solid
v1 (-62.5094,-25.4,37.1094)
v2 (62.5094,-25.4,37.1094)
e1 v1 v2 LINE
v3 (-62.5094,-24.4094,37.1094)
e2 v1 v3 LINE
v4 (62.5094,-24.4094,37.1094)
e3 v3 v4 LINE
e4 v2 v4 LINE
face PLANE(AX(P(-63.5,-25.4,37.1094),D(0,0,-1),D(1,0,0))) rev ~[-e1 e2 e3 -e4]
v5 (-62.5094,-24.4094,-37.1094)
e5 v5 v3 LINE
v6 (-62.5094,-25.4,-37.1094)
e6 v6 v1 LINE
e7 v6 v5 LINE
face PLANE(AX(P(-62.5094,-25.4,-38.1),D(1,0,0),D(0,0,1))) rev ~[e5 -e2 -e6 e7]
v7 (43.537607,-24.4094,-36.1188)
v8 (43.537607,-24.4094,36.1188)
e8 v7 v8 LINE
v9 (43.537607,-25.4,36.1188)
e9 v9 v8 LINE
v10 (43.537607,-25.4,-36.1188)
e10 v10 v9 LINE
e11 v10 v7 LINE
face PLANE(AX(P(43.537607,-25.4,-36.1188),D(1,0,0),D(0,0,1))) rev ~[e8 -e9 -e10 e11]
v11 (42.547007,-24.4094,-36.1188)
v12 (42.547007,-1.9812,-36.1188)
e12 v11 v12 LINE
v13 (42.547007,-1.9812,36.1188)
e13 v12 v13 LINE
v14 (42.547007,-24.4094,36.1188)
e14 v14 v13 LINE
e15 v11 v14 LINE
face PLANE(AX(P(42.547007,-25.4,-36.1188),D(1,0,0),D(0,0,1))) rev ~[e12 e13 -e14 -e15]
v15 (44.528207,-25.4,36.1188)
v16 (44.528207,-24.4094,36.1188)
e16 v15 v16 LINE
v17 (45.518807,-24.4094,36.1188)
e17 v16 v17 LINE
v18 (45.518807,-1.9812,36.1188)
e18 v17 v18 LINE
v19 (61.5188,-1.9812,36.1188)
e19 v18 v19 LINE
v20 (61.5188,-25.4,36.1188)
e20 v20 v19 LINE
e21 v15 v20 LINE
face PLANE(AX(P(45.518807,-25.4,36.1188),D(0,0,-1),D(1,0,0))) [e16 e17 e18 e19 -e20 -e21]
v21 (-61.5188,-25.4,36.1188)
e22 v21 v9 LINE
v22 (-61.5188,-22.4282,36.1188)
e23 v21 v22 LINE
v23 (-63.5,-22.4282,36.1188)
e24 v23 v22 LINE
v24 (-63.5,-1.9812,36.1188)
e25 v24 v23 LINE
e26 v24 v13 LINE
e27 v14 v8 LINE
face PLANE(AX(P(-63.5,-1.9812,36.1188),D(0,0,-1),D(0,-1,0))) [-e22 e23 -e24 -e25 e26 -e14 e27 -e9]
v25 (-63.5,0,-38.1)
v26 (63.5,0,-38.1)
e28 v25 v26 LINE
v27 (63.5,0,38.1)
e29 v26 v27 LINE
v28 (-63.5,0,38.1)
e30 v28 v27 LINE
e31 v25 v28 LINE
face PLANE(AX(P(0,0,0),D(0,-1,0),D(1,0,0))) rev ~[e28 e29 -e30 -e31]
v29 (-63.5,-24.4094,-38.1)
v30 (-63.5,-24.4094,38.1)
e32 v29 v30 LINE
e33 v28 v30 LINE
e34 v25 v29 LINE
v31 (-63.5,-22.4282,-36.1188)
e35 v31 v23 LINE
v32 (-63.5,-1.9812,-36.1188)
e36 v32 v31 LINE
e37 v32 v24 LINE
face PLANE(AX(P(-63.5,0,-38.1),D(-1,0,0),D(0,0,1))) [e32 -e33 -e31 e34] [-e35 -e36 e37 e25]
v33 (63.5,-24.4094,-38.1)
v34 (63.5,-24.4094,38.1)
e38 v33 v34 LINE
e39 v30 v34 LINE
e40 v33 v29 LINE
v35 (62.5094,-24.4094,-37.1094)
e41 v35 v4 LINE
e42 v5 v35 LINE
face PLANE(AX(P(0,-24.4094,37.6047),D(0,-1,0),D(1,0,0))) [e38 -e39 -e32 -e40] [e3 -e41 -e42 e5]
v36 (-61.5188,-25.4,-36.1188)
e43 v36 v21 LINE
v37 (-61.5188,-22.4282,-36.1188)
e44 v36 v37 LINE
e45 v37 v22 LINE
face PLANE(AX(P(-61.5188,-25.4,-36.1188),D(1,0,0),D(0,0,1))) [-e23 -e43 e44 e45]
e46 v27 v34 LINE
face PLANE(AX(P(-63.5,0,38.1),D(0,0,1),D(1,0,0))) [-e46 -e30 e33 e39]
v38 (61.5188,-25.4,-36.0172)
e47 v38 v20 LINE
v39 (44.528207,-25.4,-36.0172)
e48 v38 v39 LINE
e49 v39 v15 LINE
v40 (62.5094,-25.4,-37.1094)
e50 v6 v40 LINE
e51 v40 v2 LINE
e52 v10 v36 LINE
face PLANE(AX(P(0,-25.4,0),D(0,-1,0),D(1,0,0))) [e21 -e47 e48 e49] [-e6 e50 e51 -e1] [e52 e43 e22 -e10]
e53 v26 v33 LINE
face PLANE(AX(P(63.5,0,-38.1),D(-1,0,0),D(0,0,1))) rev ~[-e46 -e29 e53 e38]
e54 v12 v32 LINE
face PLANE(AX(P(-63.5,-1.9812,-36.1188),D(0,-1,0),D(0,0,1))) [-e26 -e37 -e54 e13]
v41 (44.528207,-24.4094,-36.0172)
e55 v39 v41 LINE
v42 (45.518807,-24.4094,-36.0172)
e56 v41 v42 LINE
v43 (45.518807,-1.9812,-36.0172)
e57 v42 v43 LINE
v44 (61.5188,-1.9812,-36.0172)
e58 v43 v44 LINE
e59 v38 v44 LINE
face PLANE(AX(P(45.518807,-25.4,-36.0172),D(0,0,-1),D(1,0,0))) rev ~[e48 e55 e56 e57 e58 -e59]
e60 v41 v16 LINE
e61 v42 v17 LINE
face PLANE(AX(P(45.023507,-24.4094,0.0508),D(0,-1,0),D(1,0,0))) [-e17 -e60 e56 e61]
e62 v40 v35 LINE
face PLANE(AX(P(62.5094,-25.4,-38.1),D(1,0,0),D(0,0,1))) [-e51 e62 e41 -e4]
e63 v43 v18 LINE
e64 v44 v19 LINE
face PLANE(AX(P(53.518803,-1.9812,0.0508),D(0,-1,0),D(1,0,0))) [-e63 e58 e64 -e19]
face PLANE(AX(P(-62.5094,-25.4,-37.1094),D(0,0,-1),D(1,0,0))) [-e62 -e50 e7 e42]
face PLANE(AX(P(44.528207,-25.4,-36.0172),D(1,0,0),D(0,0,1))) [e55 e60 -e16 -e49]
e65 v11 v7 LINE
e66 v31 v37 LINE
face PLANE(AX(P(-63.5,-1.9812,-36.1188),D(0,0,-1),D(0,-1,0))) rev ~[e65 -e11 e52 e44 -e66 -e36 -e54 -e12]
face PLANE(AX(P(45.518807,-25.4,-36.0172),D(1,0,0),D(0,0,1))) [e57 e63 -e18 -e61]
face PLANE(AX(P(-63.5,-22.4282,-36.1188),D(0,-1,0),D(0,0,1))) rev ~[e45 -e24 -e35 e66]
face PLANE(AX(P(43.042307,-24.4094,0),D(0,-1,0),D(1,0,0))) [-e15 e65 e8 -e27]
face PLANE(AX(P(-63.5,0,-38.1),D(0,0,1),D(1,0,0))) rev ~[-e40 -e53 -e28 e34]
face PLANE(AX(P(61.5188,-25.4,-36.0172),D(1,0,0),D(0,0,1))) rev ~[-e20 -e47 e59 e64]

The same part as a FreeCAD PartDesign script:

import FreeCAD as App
import Part
import Sketcher
from FreeCAD import Vector
Q = App.Units.Quantity

doc = App.newDocument("Part")
params = doc.addObject("Spreadsheet::Sheet", "Params")
for row, (alias, value) in enumerate([
    ("sketch1_width", "5 in"),
    ("sketch1_height", "3 in"),
    ("pad1_length", "1 in"),
    ("sketch2_height", "2.84 in"),
    ("pocket1_length", "0.922 in"),
    ("sketch3_height", "2.84 in"),
    ("sketch3_width", "0.039 in"),
    ("pocket2_length", "0.039 in"),
    ("sketch4_width", "5 in"),
    ("sketch4_height", "0.039 in"),
    ("pocket3_length", "0.039 in"),
    ("sketch5_width", "0.039 in"),
    ("sketch5_height", "2.961 in"),
    ("pocket4_length", "0.039 in"),
    ("sketch6_width", "0.039 in"),
    ("sketch6_height", "2.961 in"),
    ("pocket5_length", "0.039 in"),
    ("sketch7_width", "4.922 in"),
    ("sketch7_height", "0.039 in"),
    ("pocket6_length", "0.039 in"),
    ("sketch8_height", "2.844 in"),
    ("pocket7_length", "0.922 in"),
    ("sketch9_width", "0.039 in"),
    ("sketch9_height", "2.844 in"),
    ("pocket8_length", "0.039 in"),
    ("sketch10_width", "0.805 in"),
    ("sketch10_height", "2.844 in"),
    ("pocket9_length", "0.078 in"),
], start=1):
    params.set(f"A{row}", alias)
    params.set(f"B{row}", "=" + value)
    params.setAlias(f"B{row}", alias)

body = doc.addObject("PartDesign::Body", "Body")

# Sketch on XZ plane
sketch1 = doc.addObject("Sketcher::SketchObject", "Sketch")
body.addObject(sketch1)
sketch1.AttachmentSupport = (doc.XZ_Plane, [""])
sketch1.MapMode = "FlatFace"
sketch1.addGeometry([
    Part.LineSegment(Vector(-64, 38, 0), Vector(-64, -38, 0)),
    Part.LineSegment(Vector(-64, -38, 0), Vector(64, -38, 0)),
    Part.LineSegment(Vector(64, -38, 0), Vector(64, 38, 0)),
    Part.LineSegment(Vector(64, 38, 0), Vector(-64, 38, 0)),
], False)
sketch1.addConstraint([
    Sketcher.Constraint("Coincident", 0, 2, 1, 1),
    Sketcher.Constraint("Coincident", 1, 2, 2, 1),
    Sketcher.Constraint("Coincident", 2, 2, 3, 1),
    Sketcher.Constraint("Coincident", 3, 2, 0, 1),
    Sketcher.Constraint("Vertical", 0),
    Sketcher.Constraint("Horizontal", 1),
    Sketcher.Constraint("Vertical", 2),
    Sketcher.Constraint("Horizontal", 3),
    Sketcher.Constraint("Symmetric", 0, 2, 2, 2, -1, 1),
    Sketcher.Constraint("DistanceX", 1, 1, 1, 2, Q("5 in")),
    Sketcher.Constraint("DistanceY", 0, 2, 0, 1, Q("3 in")),
])
sketch1.setExpression("Constraints[9]", "Params.sketch1_width")
sketch1.setExpression("Constraints[10]", "Params.sketch1_height")
pad1 = doc.addObject("PartDesign::Pad", "Pad")
body.addObject(pad1)
pad1.Profile = sketch1
pad1.setExpression("Length", "Params.pad1_length")

# Sketch on XZ plane
sketch2 = doc.addObject("Sketcher::SketchObject", "Sketch001")
body.addObject(sketch2)
sketch2.AttachmentSupport = (doc.XZ_Plane, [""])
sketch2.MapMode = "FlatFace"
sketch2.AttachmentOffset = App.Placement(Vector(0, 0, 1 * 25.4), App.Rotation())
sketch2.addGeometry([
    Part.LineSegment(Vector(46, 36, 0), Vector(46, -36, 0)),
    Part.LineSegment(Vector(46, -36, 0), Vector(62, -36, 0)),
    Part.LineSegment(Vector(62, -36, 0), Vector(62, 36, 0)),
    Part.LineSegment(Vector(62, 36, 0), Vector(46, 36, 0)),
], False)
sketch2.addConstraint([
    Sketcher.Constraint("Coincident", 0, 2, 1, 1),
    Sketcher.Constraint("Coincident", 1, 2, 2, 1),
    Sketcher.Constraint("Coincident", 2, 2, 3, 1),
    Sketcher.Constraint("Coincident", 3, 2, 0, 1),
    Sketcher.Constraint("Vertical", 0),
    Sketcher.Constraint("Horizontal", 1),
    Sketcher.Constraint("Vertical", 2),
    Sketcher.Constraint("Horizontal", 3),
    Sketcher.Constraint("DistanceY", 0, 2, 0, 1, Q("2.84 in")),
    Sketcher.Constraint("DistanceY", 0, 2, -1, 1, Q("1.418 in")),
    Sketcher.Constraint("DistanceX", -1, 1, 1, 2, Q("2.422 in")),
    Sketcher.Constraint("DistanceX", 1, 1, 1, 2, Q("15.999993 mm")),
])
sketch2.setExpression("Constraints[8]", "Params.sketch2_height")
pocket1 = doc.addObject("PartDesign::Pocket", "Pocket")
body.addObject(pocket1)
pocket1.Profile = sketch2
pocket1.setExpression("Length", "Params.pocket1_length")

# Sketch on XZ plane
sketch3 = doc.addObject("Sketcher::SketchObject", "Sketch002")
body.addObject(sketch3)
sketch3.AttachmentSupport = (doc.XZ_Plane, [""])
sketch3.MapMode = "FlatFace"
sketch3.AttachmentOffset = App.Placement(Vector(0, 0, 1 * 25.4), App.Rotation())
sketch3.addGeometry([
    Part.LineSegment(Vector(44.5, 36.1, 0), Vector(44.5, -36, 0)),
    Part.LineSegment(Vector(44.5, -36, 0), Vector(45.5, -36, 0)),
    Part.LineSegment(Vector(45.5, -36, 0), Vector(45.5, 36.1, 0)),
    Part.LineSegment(Vector(45.5, 36.1, 0), Vector(44.5, 36.1, 0)),
], False)
sketch3.addConstraint([
    Sketcher.Constraint("Coincident", 0, 2, 1, 1),
    Sketcher.Constraint("Coincident", 1, 2, 2, 1),
    Sketcher.Constraint("Coincident", 2, 2, 3, 1),
    Sketcher.Constraint("Coincident", 3, 2, 0, 1),
    Sketcher.Constraint("Vertical", 0),
    Sketcher.Constraint("Horizontal", 1),
    Sketcher.Constraint("Vertical", 2),
    Sketcher.Constraint("Horizontal", 3),
    Sketcher.Constraint("DistanceY", 0, 2, 0, 1, Q("2.84 in")),
    Sketcher.Constraint("DistanceX", 1, 1, 1, 2, Q("0.039 in")),
    Sketcher.Constraint("DistanceY", 0, 2, -1, 1, Q("1.418 in")),
    Sketcher.Constraint("DistanceX", -1, 1, 0, 2, Q("44.528207 mm")),
])
sketch3.setExpression("Constraints[8]", "Params.sketch3_height")
sketch3.setExpression("Constraints[9]", "Params.sketch3_width")
pocket2 = doc.addObject("PartDesign::Pocket", "Pocket001")
body.addObject(pocket2)
pocket2.Profile = sketch3
pocket2.setExpression("Length", "Params.pocket2_length")

# Sketch on XZ plane
sketch4 = doc.addObject("Sketcher::SketchObject", "Sketch003")
body.addObject(sketch4)
sketch4.AttachmentSupport = (doc.XZ_Plane, [""])
sketch4.MapMode = "FlatFace"
sketch4.AttachmentOffset = App.Placement(Vector(0, 0, 1 * 25.4), App.Rotation())
sketch4.addGeometry([
    Part.LineSegment(Vector(-63.5, 38.1, 0), Vector(-63.5, 37.1, 0)),
    Part.LineSegment(Vector(-63.5, 37.1, 0), Vector(63.5, 37.1, 0)),
    Part.LineSegment(Vector(63.5, 37.1, 0), Vector(63.5, 38.1, 0)),
    Part.LineSegment(Vector(63.5, 38.1, 0), Vector(-63.5, 38.1, 0)),
], False)
sketch4.addConstraint([
    Sketcher.Constraint("Coincident", 0, 2, 1, 1),
    Sketcher.Constraint("Coincident", 1, 2, 2, 1),
    Sketcher.Constraint("Coincident", 2, 2, 3, 1),
    Sketcher.Constraint("Coincident", 3, 2, 0, 1),
    Sketcher.Constraint("Vertical", 0),
    Sketcher.Constraint("Horizontal", 1),
    Sketcher.Constraint("Vertical", 2),
    Sketcher.Constraint("Horizontal", 3),
    Sketcher.Constraint("DistanceX", 1, 1, 1, 2, Q("5 in")),
    Sketcher.Constraint("DistanceX", 0, 2, -1, 1, Q("2.5 in")),
    Sketcher.Constraint("DistanceY", -1, 1, 2, 2, Q("1.5 in")),
    Sketcher.Constraint("DistanceY", 0, 2, 0, 1, Q("0.039 in")),
])
sketch4.setExpression("Constraints[8]", "Params.sketch4_width")
sketch4.setExpression("Constraints[11]", "Params.sketch4_height")
pocket3 = doc.addObject("PartDesign::Pocket", "Pocket002")
body.addObject(pocket3)
pocket3.Profile = sketch4
pocket3.setExpression("Length", "Params.pocket3_length")

# Sketch on XZ plane
sketch5 = doc.addObject("Sketcher::SketchObject", "Sketch004")
body.addObject(sketch5)
sketch5.AttachmentSupport = (doc.XZ_Plane, [""])
sketch5.MapMode = "FlatFace"
sketch5.AttachmentOffset = App.Placement(Vector(0, 0, 1 * 25.4), App.Rotation())
sketch5.addGeometry([
    Part.LineSegment(Vector(62.5, 37.1, 0), Vector(62.5, -38.1, 0)),
    Part.LineSegment(Vector(62.5, -38.1, 0), Vector(63.5, -38.1, 0)),
    Part.LineSegment(Vector(63.5, -38.1, 0), Vector(63.5, 37.1, 0)),
    Part.LineSegment(Vector(63.5, 37.1, 0), Vector(62.5, 37.1, 0)),
], False)
sketch5.addConstraint([
    Sketcher.Constraint("Coincident", 0, 2, 1, 1),
    Sketcher.Constraint("Coincident", 1, 2, 2, 1),
    Sketcher.Constraint("Coincident", 2, 2, 3, 1),
    Sketcher.Constraint("Coincident", 3, 2, 0, 1),
    Sketcher.Constraint("Vertical", 0),
    Sketcher.Constraint("Horizontal", 1),
    Sketcher.Constraint("Vertical", 2),
    Sketcher.Constraint("Horizontal", 3),
    Sketcher.Constraint("DistanceY", 0, 2, -1, 1, Q("1.5 in")),
    Sketcher.Constraint("DistanceX", -1, 1, 1, 2, Q("2.5 in")),
    Sketcher.Constraint("DistanceX", 1, 1, 1, 2, Q("0.039 in")),
    Sketcher.Constraint("DistanceY", 0, 2, 0, 1, Q("2.961 in")),
])
sketch5.setExpression("Constraints[10]", "Params.sketch5_width")
sketch5.setExpression("Constraints[11]", "Params.sketch5_height")
pocket4 = doc.addObject("PartDesign::Pocket", "Pocket003")
body.addObject(pocket4)
pocket4.Profile = sketch5
pocket4.setExpression("Length", "Params.pocket4_length")

# Sketch on XZ plane
sketch6 = doc.addObject("Sketcher::SketchObject", "Sketch005")
body.addObject(sketch6)
sketch6.AttachmentSupport = (doc.XZ_Plane, [""])
sketch6.MapMode = "FlatFace"
sketch6.AttachmentOffset = App.Placement(Vector(0, 0, 1 * 25.4), App.Rotation())
sketch6.addGeometry([
    Part.LineSegment(Vector(-63.5, 37.1, 0), Vector(-63.5, -38.1, 0)),
    Part.LineSegment(Vector(-63.5, -38.1, 0), Vector(-62.5, -38.1, 0)),
    Part.LineSegment(Vector(-62.5, -38.1, 0), Vector(-62.5, 37.1, 0)),
    Part.LineSegment(Vector(-62.5, 37.1, 0), Vector(-63.5, 37.1, 0)),
], False)
sketch6.addConstraint([
    Sketcher.Constraint("Coincident", 0, 2, 1, 1),
    Sketcher.Constraint("Coincident", 1, 2, 2, 1),
    Sketcher.Constraint("Coincident", 2, 2, 3, 1),
    Sketcher.Constraint("Coincident", 3, 2, 0, 1),
    Sketcher.Constraint("Vertical", 0),
    Sketcher.Constraint("Horizontal", 1),
    Sketcher.Constraint("Vertical", 2),
    Sketcher.Constraint("Horizontal", 3),
    Sketcher.Constraint("DistanceX", 0, 2, -1, 1, Q("2.5 in")),
    Sketcher.Constraint("DistanceY", 0, 2, -1, 1, Q("1.5 in")),
    Sketcher.Constraint("DistanceX", 1, 1, 1, 2, Q("0.039 in")),
    Sketcher.Constraint("DistanceY", 0, 2, 0, 1, Q("2.961 in")),
])
sketch6.setExpression("Constraints[10]", "Params.sketch6_width")
sketch6.setExpression("Constraints[11]", "Params.sketch6_height")
pocket5 = doc.addObject("PartDesign::Pocket", "Pocket004")
body.addObject(pocket5)
pocket5.Profile = sketch6
pocket5.setExpression("Length", "Params.pocket5_length")

# Sketch on XZ plane
sketch7 = doc.addObject("Sketcher::SketchObject", "Sketch006")
body.addObject(sketch7)
sketch7.AttachmentSupport = (doc.XZ_Plane, [""])
sketch7.MapMode = "FlatFace"
sketch7.AttachmentOffset = App.Placement(Vector(0, 0, 1 * 25.4), App.Rotation())
sketch7.addGeometry([
    Part.LineSegment(Vector(-62.5, -37.1, 0), Vector(-62.5, -38.1, 0)),
    Part.LineSegment(Vector(-62.5, -38.1, 0), Vector(62.5, -38.1, 0)),
    Part.LineSegment(Vector(62.5, -38.1, 0), Vector(62.5, -37.1, 0)),
    Part.LineSegment(Vector(62.5, -37.1, 0), Vector(-62.5, -37.1, 0)),
], False)
sketch7.addConstraint([
    Sketcher.Constraint("Coincident", 0, 2, 1, 1),
    Sketcher.Constraint("Coincident", 1, 2, 2, 1),
    Sketcher.Constraint("Coincident", 2, 2, 3, 1),
    Sketcher.Constraint("Coincident", 3, 2, 0, 1),
    Sketcher.Constraint("Vertical", 0),
    Sketcher.Constraint("Horizontal", 1),
    Sketcher.Constraint("Vertical", 2),
    Sketcher.Constraint("Horizontal", 3),
    Sketcher.Constraint("DistanceY", 0, 2, -1, 1, Q("1.5 in")),
    Sketcher.Constraint("DistanceX", 1, 1, 1, 2, Q("4.922 in")),
    Sketcher.Constraint("DistanceY", 0, 2, 0, 1, Q("0.039 in")),
    Sketcher.Constraint("DistanceX", 0, 2, -1, 1, Q("2.461 in")),
])
sketch7.setExpression("Constraints[9]", "Params.sketch7_width")
sketch7.setExpression("Constraints[10]", "Params.sketch7_height")
pocket6 = doc.addObject("PartDesign::Pocket", "Pocket005")
body.addObject(pocket6)
pocket6.Profile = sketch7
pocket6.setExpression("Length", "Params.pocket6_length")

# Sketch on XZ plane
sketch8 = doc.addObject("Sketcher::SketchObject", "Sketch007")
body.addObject(sketch8)
sketch8.AttachmentSupport = (doc.XZ_Plane, [""])
sketch8.MapMode = "FlatFace"
sketch8.AttachmentOffset = App.Placement(Vector(0, 0, 1 * 25.4), App.Rotation())
sketch8.addGeometry([
    Part.LineSegment(Vector(-62, 36, 0), Vector(-62, -36, 0)),
    Part.LineSegment(Vector(-62, -36, 0), Vector(43, -36, 0)),
    Part.LineSegment(Vector(43, -36, 0), Vector(43, 36, 0)),
    Part.LineSegment(Vector(43, 36, 0), Vector(-62, 36, 0)),
], False)
sketch8.addConstraint([
    Sketcher.Constraint("Coincident", 0, 2, 1, 1),
    Sketcher.Constraint("Coincident", 1, 2, 2, 1),
    Sketcher.Constraint("Coincident", 2, 2, 3, 1),
    Sketcher.Constraint("Coincident", 3, 2, 0, 1),
    Sketcher.Constraint("Vertical", 0),
    Sketcher.Constraint("Horizontal", 1),
    Sketcher.Constraint("Vertical", 2),
    Sketcher.Constraint("Horizontal", 3),
    Sketcher.Constraint("DistanceY", 0, 2, 0, 1, Q("2.844 in")),
    Sketcher.Constraint("DistanceX", 0, 2, -1, 1, Q("2.422 in")),
    Sketcher.Constraint("DistanceY", 0, 2, -1, 1, Q("1.422 in")),
    Sketcher.Constraint("DistanceX", 1, 1, 1, 2, Q("104.065807 mm")),
])
sketch8.setExpression("Constraints[8]", "Params.sketch8_height")
pocket7 = doc.addObject("PartDesign::Pocket", "Pocket006")
body.addObject(pocket7)
pocket7.Profile = sketch8
pocket7.setExpression("Length", "Params.pocket7_length")

# Sketch on XZ plane
sketch9 = doc.addObject("Sketcher::SketchObject", "Sketch008")
body.addObject(sketch9)
sketch9.AttachmentSupport = (doc.XZ_Plane, [""])
sketch9.MapMode = "FlatFace"
sketch9.AttachmentOffset = App.Placement(Vector(0, 0, 1 * 25.4), App.Rotation())
sketch9.addGeometry([
    Part.LineSegment(Vector(42.5, 36.1, 0), Vector(42.5, -36.1, 0)),
    Part.LineSegment(Vector(42.5, -36.1, 0), Vector(43.5, -36.1, 0)),
    Part.LineSegment(Vector(43.5, -36.1, 0), Vector(43.5, 36.1, 0)),
    Part.LineSegment(Vector(43.5, 36.1, 0), Vector(42.5, 36.1, 0)),
], False)
sketch9.addConstraint([
    Sketcher.Constraint("Coincident", 0, 2, 1, 1),
    Sketcher.Constraint("Coincident", 1, 2, 2, 1),
    Sketcher.Constraint("Coincident", 2, 2, 3, 1),
    Sketcher.Constraint("Coincident", 3, 2, 0, 1),
    Sketcher.Constraint("Vertical", 0),
    Sketcher.Constraint("Horizontal", 1),
    Sketcher.Constraint("Vertical", 2),
    Sketcher.Constraint("Horizontal", 3),
    Sketcher.Constraint("DistanceX", 1, 1, 1, 2, Q("0.039 in")),
    Sketcher.Constraint("DistanceY", 0, 2, 0, 1, Q("2.844 in")),
    Sketcher.Constraint("DistanceY", 0, 2, -1, 1, Q("1.422 in")),
    Sketcher.Constraint("DistanceX", -1, 1, 0, 2, Q("42.547007 mm")),
])
sketch9.setExpression("Constraints[8]", "Params.sketch9_width")
sketch9.setExpression("Constraints[9]", "Params.sketch9_height")
pocket8 = doc.addObject("PartDesign::Pocket", "Pocket007")
body.addObject(pocket8)
pocket8.Profile = sketch9
pocket8.setExpression("Length", "Params.pocket8_length")

# Sketch on YZ plane
sketch10 = doc.addObject("Sketcher::SketchObject", "Sketch009")
body.addObject(sketch10)
sketch10.AttachmentSupport = (doc.YZ_Plane, [""])
sketch10.MapMode = "FlatFace"
sketch10.AttachmentOffset = App.Placement(Vector(0, 0, -2.5 * 25.4), App.Rotation())
sketch10.addGeometry([
    Part.LineSegment(Vector(-2, 36, 0), Vector(-2, -36, 0)),
    Part.LineSegment(Vector(-2, -36, 0), Vector(-22, -36, 0)),
    Part.LineSegment(Vector(-22, -36, 0), Vector(-22, 36, 0)),
    Part.LineSegment(Vector(-22, 36, 0), Vector(-2, 36, 0)),
], False)
sketch10.addConstraint([
    Sketcher.Constraint("Coincident", 0, 2, 1, 1),
    Sketcher.Constraint("Coincident", 1, 2, 2, 1),
    Sketcher.Constraint("Coincident", 2, 2, 3, 1),
    Sketcher.Constraint("Coincident", 3, 2, 0, 1),
    Sketcher.Constraint("Vertical", 0),
    Sketcher.Constraint("Horizontal", 1),
    Sketcher.Constraint("Vertical", 2),
    Sketcher.Constraint("Horizontal", 3),
    Sketcher.Constraint("DistanceX", 1, 2, 1, 1, Q("0.805 in")),
    Sketcher.Constraint("DistanceY", 0, 2, 0, 1, Q("2.844 in")),
    Sketcher.Constraint("DistanceX", 0, 2, -1, 1, Q("0.078 in")),
    Sketcher.Constraint("DistanceY", 0, 2, -1, 1, Q("1.422 in")),
])
sketch10.setExpression("Constraints[8]", "Params.sketch10_width")
sketch10.setExpression("Constraints[9]", "Params.sketch10_height")
pocket9 = doc.addObject("PartDesign::Pocket", "Pocket008")
body.addObject(pocket9)
pocket9.Profile = sketch10
pocket9.setExpression("Length", "Params.pocket9_length")
pocket9.Reversed = True

doc.recompute()
